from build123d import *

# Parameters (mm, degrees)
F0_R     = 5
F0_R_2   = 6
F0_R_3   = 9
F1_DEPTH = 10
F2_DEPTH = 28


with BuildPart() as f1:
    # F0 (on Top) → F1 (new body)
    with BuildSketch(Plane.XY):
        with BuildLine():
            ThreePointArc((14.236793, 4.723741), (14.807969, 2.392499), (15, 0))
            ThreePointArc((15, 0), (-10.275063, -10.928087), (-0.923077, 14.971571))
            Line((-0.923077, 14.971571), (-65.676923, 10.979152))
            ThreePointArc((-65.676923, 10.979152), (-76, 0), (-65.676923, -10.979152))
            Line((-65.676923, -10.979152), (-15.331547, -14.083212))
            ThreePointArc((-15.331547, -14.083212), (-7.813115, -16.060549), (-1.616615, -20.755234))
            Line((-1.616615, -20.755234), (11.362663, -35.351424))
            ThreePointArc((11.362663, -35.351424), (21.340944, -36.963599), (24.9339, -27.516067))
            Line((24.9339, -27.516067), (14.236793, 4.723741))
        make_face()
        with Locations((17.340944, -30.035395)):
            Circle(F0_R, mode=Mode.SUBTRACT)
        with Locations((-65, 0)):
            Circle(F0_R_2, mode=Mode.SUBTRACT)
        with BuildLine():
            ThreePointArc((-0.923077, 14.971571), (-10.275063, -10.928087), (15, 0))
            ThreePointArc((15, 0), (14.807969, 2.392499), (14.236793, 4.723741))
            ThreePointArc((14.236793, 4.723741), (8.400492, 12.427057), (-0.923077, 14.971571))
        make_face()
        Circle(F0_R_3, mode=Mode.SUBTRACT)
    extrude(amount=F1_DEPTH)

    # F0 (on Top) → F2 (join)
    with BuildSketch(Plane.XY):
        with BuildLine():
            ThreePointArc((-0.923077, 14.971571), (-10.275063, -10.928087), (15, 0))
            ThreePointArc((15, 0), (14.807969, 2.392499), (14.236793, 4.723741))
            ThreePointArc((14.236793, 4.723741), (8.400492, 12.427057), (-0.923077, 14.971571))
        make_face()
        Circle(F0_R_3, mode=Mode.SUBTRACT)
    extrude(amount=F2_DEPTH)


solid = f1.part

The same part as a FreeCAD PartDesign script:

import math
import FreeCAD as App
import Part
import Sketcher
from FreeCAD import Vector
Q = App.Units.Quantity

doc = App.newDocument("Part")
body = doc.addObject("PartDesign::Body", "Body")

sketch1 = body.newObject("Sketcher::SketchObject", "Sketch")
sketch1.AttachmentSupport = (doc.getObject("XY_Plane"), [""])
sketch1.MapMode = "FlatFace"
sketch1.addGeometry(Part.LineSegment(Vector(25, -28, 0), Vector(14, 5, 0)), False)
sketch1.addGeometry(Part.ArcOfCircle(Part.Circle(Vector(0, 0, 0), Vector(0, 0, 1), 15), math.radians(18), math.radians(94)), False)
sketch1.addGeometry(Part.LineSegment(Vector(-1, 15, 0), Vector(-66, 11, 0)), False)
sketch1.addGeometry(Part.ArcOfCircle(Part.Circle(Vector(-65, 0, 0), Vector(0, 0, 1), 11), math.radians(94), math.radians(266)), False)
sketch1.addGeometry(Part.LineSegment(Vector(-66, -11, 0), Vector(-15, -14, 0)), False)
sketch1.addGeometry(Part.ArcOfCircle(Part.Circle(Vector(-17, -34, 0), Vector(0, 0, 1), 20), math.radians(42), math.radians(86)), False)
sketch1.addGeometry(Part.LineSegment(Vector(-2, -21, 0), Vector(11, -35, 0)), False)
sketch1.addGeometry(Part.ArcOfCircle(Part.Circle(Vector(17, -30, 0), Vector(0, 0, 1), 8), math.radians(-138), math.radians(18)), False)
sketch1.addGeometry(Part.Circle(Vector(17, -30, 0), Vector(0, 0, 1), 5), False)
sketch1.addGeometry(Part.Circle(Vector(-65, 0, 0), Vector(0, 0, 1), 6), False)
sketch1.addGeometry(Part.Circle(Vector(0, 0, 0), Vector(0, 0, 1), 9), False)
sketch1.addConstraint(Sketcher.Constraint("Tangent", 0, 2, 1, 1))
sketch1.addConstraint(Sketcher.Constraint("Tangent", 1, 2, 2, 1))
sketch1.addConstraint(Sketcher.Constraint("Tangent", 2, 2, 3, 1))
sketch1.addConstraint(Sketcher.Constraint("Tangent", 3, 2, 4, 1))
sketch1.addConstraint(Sketcher.Constraint("Tangent", 4, 2, 5, 2))
sketch1.addConstraint(Sketcher.Constraint("Tangent", 5, 1, 6, 1))
sketch1.addConstraint(Sketcher.Constraint("Tangent", 6, 2, 7, 1))
sketch1.addConstraint(Sketcher.Constraint("Tangent", 7, 2, 0, 1))
sketch1.addConstraint(Sketcher.Constraint("Coincident", 1, 3, -1, 1))
sketch1.addConstraint(Sketcher.Constraint("Coincident", 10, 3, -1, 1))
sketch1.addConstraint(Sketcher.Constraint("Coincident", 8, 3, 7, 3))
sketch1.addConstraint(Sketcher.Constraint("Coincident", 9, 3, 3, 3))
sketch1.addConstraint(Sketcher.Constraint("Symmetric", 2, 2, 3, 2, -1))
sketch1.addConstraint(Sketcher.Constraint("Diameter", 8, Q("10 mm")))
sketch1.addConstraint(Sketcher.Constraint("Diameter", 9, Q("12 mm")))
sketch1.addConstraint(Sketcher.Constraint("Diameter", 10, Q("18 mm")))
sketch1.addConstraint(Sketcher.Constraint("Radius", 1, Q("15 mm")))
sketch1.addConstraint(Sketcher.Constraint("Radius", 3, Q("11 mm")))
sketch1.addConstraint(Sketcher.Constraint("Radius", 7, Q("8 mm")))
sketch1.addConstraint(Sketcher.Constraint("DistanceX", 3, 3, -1, 1, Q("65 mm")))
sketch1.addConstraint(Sketcher.Constraint("Radius", 5, Q("19.999996 mm")))
sketch1.addConstraint(Sketcher.Constraint("DistanceX", -1, 1, 7, 2, Q("24.9339 mm")))
sketch1.addConstraint(Sketcher.Constraint("DistanceX", 5, 3, 5, 1, Q("14.945699 mm")))
sketch1.addConstraint(Sketcher.Constraint("Distance", 6, Q("19.532292 mm")))
pad1 = body.newObject("PartDesign::Pad", "Pad")
pad1.Profile = sketch1
pad1.Length = 10

sketch2 = body.newObject("Sketcher::SketchObject", "Sketch001")
sketch2.AttachmentSupport = (doc.getObject("XY_Plane"), [""])
sketch2.MapMode = "FlatFace"
sketch2.addGeometry(Part.ArcOfCircle(Part.Circle(Vector(0, 0, 0), Vector(0, 0, 1), 15), math.radians(94), math.radians(360)), False)
sketch2.addGeometry(Part.ArcOfCircle(Part.Circle(Vector(0, 0, 0), Vector(0, 0, 1), 15), math.radians(0), math.radians(18.36)), False)
sketch2.addGeometry(Part.ArcOfCircle(Part.Circle(Vector(0, 0, 0), Vector(0, 0, 1), 15), math.radians(18), math.radians(94)), False)
sketch2.addGeometry(Part.Circle(Vector(0, 0, 0), Vector(0, 0, 1), 9), False)
sketch2.addConstraint(Sketcher.Constraint("Tangent", 0, 2, 1, 1))
sketch2.addConstraint(Sketcher.Constraint("Tangent", 1, 2, 2, 1))
sketch2.addConstraint(Sketcher.Constraint("Tangent", 2, 2, 0, 1))
sketch2.addConstraint(Sketcher.Constraint("Coincident", 0, 3, -1, 1))
sketch2.addConstraint(Sketcher.Constraint("Coincident", 3, 3, -1, 1))
sketch2.addConstraint(Sketcher.Constraint("PointOnObject", 0, 2, -1))
sketch2.addConstraint(Sketcher.Constraint("Diameter", 3, Q("18 mm")))
sketch2.addConstraint(Sketcher.Constraint("Radius", 0, Q("15 mm")))
sketch2.addConstraint(Sketcher.Constraint("DistanceY", -1, 1, 1, 2, Q("4.723741 mm")))
sketch2.addConstraint(Sketcher.Constraint("DistanceY", -1, 1, 2, 2, Q("14.971571 mm")))
pad2 = body.newObject("PartDesign::Pad", "Pad001")
pad2.Profile = sketch2
pad2.Length = 28

doc.recompute()
